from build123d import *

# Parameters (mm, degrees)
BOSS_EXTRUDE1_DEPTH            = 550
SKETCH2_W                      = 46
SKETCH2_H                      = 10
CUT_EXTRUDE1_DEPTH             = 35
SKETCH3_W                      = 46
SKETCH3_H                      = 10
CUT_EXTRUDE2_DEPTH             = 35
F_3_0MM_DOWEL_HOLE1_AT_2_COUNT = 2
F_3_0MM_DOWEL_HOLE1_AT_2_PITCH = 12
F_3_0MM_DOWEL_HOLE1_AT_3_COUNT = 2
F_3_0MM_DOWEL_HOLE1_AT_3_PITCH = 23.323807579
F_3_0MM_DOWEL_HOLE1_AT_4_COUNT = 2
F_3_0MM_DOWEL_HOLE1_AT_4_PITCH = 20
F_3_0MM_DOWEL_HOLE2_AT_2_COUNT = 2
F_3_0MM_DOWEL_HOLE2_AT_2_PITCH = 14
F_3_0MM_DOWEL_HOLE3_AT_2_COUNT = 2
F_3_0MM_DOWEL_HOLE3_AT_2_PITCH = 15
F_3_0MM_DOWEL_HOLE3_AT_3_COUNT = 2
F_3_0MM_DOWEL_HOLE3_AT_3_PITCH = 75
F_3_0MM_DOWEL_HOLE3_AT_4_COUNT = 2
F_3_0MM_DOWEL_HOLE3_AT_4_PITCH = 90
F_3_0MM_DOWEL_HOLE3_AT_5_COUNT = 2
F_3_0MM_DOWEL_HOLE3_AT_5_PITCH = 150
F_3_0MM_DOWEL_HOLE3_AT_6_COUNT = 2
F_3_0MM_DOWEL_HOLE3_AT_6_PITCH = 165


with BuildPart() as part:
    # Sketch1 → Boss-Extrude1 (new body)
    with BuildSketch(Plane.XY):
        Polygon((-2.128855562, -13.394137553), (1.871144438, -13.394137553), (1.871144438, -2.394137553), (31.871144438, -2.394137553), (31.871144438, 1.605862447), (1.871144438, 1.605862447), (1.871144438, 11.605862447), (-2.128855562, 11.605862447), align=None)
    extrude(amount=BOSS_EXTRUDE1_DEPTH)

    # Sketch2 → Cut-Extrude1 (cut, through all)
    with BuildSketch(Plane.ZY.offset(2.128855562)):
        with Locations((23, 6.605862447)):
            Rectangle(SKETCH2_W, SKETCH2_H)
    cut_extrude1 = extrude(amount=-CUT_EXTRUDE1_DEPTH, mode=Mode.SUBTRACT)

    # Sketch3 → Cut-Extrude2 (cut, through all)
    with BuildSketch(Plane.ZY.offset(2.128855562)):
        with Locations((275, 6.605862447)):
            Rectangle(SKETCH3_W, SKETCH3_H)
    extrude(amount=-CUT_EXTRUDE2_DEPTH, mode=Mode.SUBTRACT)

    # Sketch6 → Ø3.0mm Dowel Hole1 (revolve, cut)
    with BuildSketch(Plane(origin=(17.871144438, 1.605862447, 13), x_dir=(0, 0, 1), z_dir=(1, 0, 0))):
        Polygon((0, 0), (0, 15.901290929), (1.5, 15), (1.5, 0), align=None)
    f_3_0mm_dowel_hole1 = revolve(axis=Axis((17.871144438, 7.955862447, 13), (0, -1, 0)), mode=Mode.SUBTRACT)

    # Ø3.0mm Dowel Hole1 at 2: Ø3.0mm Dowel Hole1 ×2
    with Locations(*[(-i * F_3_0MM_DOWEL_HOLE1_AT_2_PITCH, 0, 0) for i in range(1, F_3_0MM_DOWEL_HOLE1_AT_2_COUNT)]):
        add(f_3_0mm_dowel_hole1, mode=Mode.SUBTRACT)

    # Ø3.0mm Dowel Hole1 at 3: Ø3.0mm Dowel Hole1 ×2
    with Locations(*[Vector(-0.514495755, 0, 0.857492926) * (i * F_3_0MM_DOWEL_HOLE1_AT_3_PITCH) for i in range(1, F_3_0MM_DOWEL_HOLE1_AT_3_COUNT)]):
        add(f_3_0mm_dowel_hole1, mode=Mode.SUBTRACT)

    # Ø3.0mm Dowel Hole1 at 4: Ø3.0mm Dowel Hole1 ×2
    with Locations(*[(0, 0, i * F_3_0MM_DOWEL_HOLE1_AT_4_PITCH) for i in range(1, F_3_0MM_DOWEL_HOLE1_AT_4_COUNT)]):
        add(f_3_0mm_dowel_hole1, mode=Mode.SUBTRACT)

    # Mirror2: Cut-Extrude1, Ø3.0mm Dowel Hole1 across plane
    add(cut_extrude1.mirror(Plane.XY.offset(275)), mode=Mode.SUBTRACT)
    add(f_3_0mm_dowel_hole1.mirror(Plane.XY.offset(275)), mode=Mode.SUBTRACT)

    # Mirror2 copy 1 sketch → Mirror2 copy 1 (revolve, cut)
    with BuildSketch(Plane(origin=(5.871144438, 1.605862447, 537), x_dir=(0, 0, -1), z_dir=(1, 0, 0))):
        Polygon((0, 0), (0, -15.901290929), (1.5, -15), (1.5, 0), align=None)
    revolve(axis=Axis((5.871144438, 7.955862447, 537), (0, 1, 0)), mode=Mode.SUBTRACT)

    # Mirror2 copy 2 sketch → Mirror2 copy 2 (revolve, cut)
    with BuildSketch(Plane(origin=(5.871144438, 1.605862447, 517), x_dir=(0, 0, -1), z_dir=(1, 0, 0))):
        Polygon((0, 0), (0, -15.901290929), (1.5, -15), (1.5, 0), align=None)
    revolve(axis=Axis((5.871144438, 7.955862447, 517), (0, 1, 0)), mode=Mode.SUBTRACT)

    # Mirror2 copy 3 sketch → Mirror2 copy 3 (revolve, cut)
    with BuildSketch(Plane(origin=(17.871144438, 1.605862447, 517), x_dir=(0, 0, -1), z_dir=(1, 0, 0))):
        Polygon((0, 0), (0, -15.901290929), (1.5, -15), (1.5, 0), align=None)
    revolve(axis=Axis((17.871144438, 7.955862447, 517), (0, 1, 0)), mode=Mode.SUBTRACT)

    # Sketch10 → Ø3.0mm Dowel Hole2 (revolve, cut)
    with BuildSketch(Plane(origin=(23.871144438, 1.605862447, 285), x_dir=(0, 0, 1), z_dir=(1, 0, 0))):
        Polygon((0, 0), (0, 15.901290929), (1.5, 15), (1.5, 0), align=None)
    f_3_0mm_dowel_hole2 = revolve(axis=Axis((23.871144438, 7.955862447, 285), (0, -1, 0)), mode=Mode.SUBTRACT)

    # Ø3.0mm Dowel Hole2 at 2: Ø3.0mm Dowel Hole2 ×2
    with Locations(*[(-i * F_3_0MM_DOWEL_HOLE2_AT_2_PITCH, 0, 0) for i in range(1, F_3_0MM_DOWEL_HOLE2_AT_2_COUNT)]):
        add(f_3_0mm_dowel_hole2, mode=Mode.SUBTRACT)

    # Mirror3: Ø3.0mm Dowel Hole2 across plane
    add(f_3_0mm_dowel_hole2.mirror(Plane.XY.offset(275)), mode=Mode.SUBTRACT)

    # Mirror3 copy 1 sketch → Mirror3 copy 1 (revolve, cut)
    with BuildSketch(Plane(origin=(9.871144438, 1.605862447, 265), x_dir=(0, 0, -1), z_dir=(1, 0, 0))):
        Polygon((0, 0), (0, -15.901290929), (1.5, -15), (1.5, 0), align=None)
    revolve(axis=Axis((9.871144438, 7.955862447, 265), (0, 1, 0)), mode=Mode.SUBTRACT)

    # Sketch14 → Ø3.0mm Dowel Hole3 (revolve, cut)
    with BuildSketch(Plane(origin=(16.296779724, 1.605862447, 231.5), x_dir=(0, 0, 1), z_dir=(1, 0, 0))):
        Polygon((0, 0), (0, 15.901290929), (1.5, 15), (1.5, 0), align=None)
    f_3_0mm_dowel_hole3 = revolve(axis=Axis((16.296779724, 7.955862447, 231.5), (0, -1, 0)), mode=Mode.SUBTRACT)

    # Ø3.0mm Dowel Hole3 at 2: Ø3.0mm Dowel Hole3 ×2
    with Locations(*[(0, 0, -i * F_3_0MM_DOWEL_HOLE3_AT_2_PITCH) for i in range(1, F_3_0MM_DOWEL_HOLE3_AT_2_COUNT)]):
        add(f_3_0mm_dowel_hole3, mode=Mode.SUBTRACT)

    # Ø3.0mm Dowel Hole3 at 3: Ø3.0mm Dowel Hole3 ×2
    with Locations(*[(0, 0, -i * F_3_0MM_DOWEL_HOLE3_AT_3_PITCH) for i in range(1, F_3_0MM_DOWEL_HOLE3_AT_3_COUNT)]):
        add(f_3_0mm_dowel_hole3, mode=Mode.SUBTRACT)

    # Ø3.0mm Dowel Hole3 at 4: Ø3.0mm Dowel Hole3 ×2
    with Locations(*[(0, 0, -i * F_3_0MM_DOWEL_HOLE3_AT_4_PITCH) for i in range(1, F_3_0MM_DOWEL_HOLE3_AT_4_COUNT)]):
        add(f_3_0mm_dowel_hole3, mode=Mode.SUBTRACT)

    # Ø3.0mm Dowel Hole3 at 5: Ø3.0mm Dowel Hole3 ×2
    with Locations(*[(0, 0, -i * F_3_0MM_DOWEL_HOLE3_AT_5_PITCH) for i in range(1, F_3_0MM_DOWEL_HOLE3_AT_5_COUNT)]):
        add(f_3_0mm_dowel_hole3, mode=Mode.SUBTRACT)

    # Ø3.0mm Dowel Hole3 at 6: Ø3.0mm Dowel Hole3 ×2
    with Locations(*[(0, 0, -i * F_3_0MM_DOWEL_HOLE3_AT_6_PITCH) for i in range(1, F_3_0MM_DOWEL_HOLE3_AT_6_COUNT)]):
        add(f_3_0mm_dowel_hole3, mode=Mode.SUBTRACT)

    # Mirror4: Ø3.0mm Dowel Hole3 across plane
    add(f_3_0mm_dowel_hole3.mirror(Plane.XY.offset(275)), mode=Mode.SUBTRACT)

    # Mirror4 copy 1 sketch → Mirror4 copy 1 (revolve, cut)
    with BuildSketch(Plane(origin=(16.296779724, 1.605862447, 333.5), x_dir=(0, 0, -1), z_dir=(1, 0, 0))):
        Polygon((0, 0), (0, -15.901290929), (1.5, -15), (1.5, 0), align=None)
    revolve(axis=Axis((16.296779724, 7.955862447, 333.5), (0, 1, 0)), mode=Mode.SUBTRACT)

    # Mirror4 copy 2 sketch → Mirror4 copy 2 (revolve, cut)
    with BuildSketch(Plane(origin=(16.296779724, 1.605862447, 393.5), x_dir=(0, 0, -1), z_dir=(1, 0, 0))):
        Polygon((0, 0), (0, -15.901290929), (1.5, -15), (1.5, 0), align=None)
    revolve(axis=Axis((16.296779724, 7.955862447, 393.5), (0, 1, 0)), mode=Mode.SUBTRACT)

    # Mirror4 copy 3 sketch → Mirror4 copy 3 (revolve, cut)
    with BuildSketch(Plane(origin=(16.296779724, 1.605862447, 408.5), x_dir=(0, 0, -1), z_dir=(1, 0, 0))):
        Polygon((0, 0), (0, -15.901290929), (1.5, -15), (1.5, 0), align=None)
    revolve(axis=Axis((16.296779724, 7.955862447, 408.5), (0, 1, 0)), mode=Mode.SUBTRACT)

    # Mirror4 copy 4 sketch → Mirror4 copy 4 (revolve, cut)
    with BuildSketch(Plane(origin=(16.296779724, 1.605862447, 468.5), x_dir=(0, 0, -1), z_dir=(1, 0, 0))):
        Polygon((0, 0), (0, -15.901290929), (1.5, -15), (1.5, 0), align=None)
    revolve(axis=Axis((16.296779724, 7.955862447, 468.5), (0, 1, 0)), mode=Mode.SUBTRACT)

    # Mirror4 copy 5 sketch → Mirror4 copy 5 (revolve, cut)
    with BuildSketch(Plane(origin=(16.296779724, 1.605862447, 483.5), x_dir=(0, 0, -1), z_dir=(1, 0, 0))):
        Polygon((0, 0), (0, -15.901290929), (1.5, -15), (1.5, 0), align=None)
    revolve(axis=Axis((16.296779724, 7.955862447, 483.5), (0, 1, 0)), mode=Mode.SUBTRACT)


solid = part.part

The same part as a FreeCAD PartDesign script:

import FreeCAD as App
import Part
import Sketcher
Q = App.Units.Quantity


def add_polygon(sketch, points):
    """Adds a closed chain of lines whose ends are joined by coincident constraints."""
    first, n = sketch.GeometryCount, len(points)
    for a, b in zip(points, points[1:] + points[:1]):
        sketch.addGeometry(Part.LineSegment(App.Vector(*a, 0), App.Vector(*b, 0)), False)
    for i in range(n):
        sketch.addConstraint(Sketcher.Constraint("Coincident", first + i, 2, first + (i + 1) % n, 1))

doc = App.newDocument("Part")
params = doc.addObject("Spreadsheet::Sheet", "Params")
for row, (alias, value) in enumerate([
    ("sketch1_width", "4 mm"),
    ("sketch1_width2", "30 mm"),
    ("sketch1_height", "11 mm"),
    ("sketch1_height2", "10 mm"),
    ("pad1_length", "550 mm"),
    ("sketch2_width", "10 mm"),
    ("sketch2_height", "46 mm"),
    ("sketch3_width", "10 mm"),
    ("sketch3_height", "46 mm"),
    ("sketch4_width", "15 mm"),
    ("sketch4_height", "1.5 mm"),
    ("groove_angle", "360 deg"),
    ("linearpattern_pitch", "12 mm"),
    ("linearpattern2_pitch", "23.323808 mm"),
    ("linearpattern3_pitch", "20 mm"),
    ("sketch5_width", "15 mm"),
    ("sketch5_height", "1.5 mm"),
    ("groove2_angle", "360 deg"),
    ("sketch6_width", "15 mm"),
    ("sketch6_height", "1.5 mm"),
    ("groove3_angle", "360 deg"),
    ("sketch7_width", "15 mm"),
    ("sketch7_height", "1.5 mm"),
    ("groove4_angle", "360 deg"),
    ("sketch8_width", "15 mm"),
    ("sketch8_height", "1.5 mm"),
    ("groove5_angle", "360 deg"),
    ("linearpattern4_pitch", "14 mm"),
    ("sketch9_width", "15 mm"),
    ("sketch9_height", "1.5 mm"),
    ("groove6_angle", "360 deg"),
    ("sketch10_width", "15 mm"),
    ("sketch10_height", "1.5 mm"),
    ("groove7_angle", "360 deg"),
    ("linearpattern5_pitch", "15 mm"),
    ("linearpattern6_pitch", "75 mm"),
    ("linearpattern7_pitch", "90 mm"),
    ("linearpattern8_pitch", "150 mm"),
    ("linearpattern9_pitch", "165 mm"),
    ("sketch11_width", "15 mm"),
    ("sketch11_height", "1.5 mm"),
    ("groove8_angle", "360 deg"),
    ("sketch12_width", "15 mm"),
    ("sketch12_height", "1.5 mm"),
    ("groove9_angle", "360 deg"),
    ("sketch13_width", "15 mm"),
    ("sketch13_height", "1.5 mm"),
    ("groove10_angle", "360 deg"),
    ("sketch14_width", "15 mm"),
    ("sketch14_height", "1.5 mm"),
    ("groove11_angle", "360 deg"),
    ("sketch15_width", "15 mm"),
    ("sketch15_height", "1.5 mm"),
    ("groove12_angle", "360 deg"),
], start=1):
    params.set(f"A{row}", alias)
    params.set(f"B{row}", "=" + value)
    params.setAlias(f"B{row}", alias)

body = doc.addObject("PartDesign::Body", "Body")

sketch1 = body.newObject("Sketcher::SketchObject", "Sketch")
sketch1.AttachmentSupport = (doc.getObject("XY_Plane"), [""])
sketch1.MapMode = "FlatFace"
add_polygon(sketch1, [(-2.1, -13.4), (1.9, -13.4), (1.9, -2.4), (31.9, -2.4), (31.9, 1.6), (1.9, 1.6), (1.9, 11.6), (-2.1, 11.6)])
sketch1.addConstraint(Sketcher.Constraint("Horizontal", 0))
sketch1.addConstraint(Sketcher.Constraint("Vertical", 1))
sketch1.addConstraint(Sketcher.Constraint("Horizontal", 2))
sketch1.addConstraint(Sketcher.Constraint("Vertical", 3))
sketch1.addConstraint(Sketcher.Constraint("Horizontal", 4))
sketch1.addConstraint(Sketcher.Constraint("Vertical", 5))
sketch1.addConstraint(Sketcher.Constraint("Horizontal", 6))
sketch1.addConstraint(Sketcher.Constraint("Vertical", 7))
sketch1.addConstraint(Sketcher.Constraint("Vertical", 1, 2, 4, 2))
sketch1.addConstraint(Sketcher.Constraint("Equal", 6, 3))
sketch1.addConstraint(Sketcher.Constraint("DistanceX", 0, 1, 0, 2, 4.0))
sketch1.addConstraint(Sketcher.Constraint("DistanceX", 2, 1, 2, 2, 30.0))
sketch1.addConstraint(Sketcher.Constraint("DistanceY", 1, 1, 1, 2, 11.0))
sketch1.addConstraint(Sketcher.Constraint("DistanceY", 5, 1, 5, 2, 10.0))
sketch1.addConstraint(Sketcher.Constraint("DistanceX", -1, 1, 0, 2, 1.871144))
sketch1.addConstraint(Sketcher.Constraint("DistanceY", 0, 2, -1, 1, 13.394138))
sketch1.setExpression("Constraints[18]", "Params.sketch1_width")
sketch1.setExpression("Constraints[19]", "Params.sketch1_width2")
sketch1.setExpression("Constraints[20]", "Params.sketch1_height")
sketch1.setExpression("Constraints[21]", "Params.sketch1_height2")
pad1 = body.newObject("PartDesign::Pad", "Pad")
pad1.Profile = sketch1
pad1.setExpression("Length", "Params.pad1_length")

sketch2 = body.newObject("Sketcher::SketchObject", "Sketch001")
sketch2.AttachmentSupport = (doc.getObject("YZ_Plane"), [""])
sketch2.MapMode = "FlatFace"
sketch2.AttachmentOffset = App.Placement(App.Vector(0, 0, -2.128856), App.Rotation())
add_polygon(sketch2, [(12, 0), (2, 0), (2, 46), (12, 46)])
sketch2.addConstraint(Sketcher.Constraint("Horizontal", 0))
sketch2.addConstraint(Sketcher.Constraint("Vertical", 1))
sketch2.addConstraint(Sketcher.Constraint("Horizontal", 2))
sketch2.addConstraint(Sketcher.Constraint("Vertical", 3))
sketch2.addConstraint(Sketcher.Constraint("PointOnObject", 0, 2, -1))
sketch2.addConstraint(Sketcher.Constraint("DistanceX", 0, 2, 0, 1, 10.0))
sketch2.addConstraint(Sketcher.Constraint("DistanceY", 1, 1, 1, 2, 46.0))
sketch2.addConstraint(Sketcher.Constraint("DistanceX", -1, 1, 0, 2, 1.605862))
sketch2.setExpression("Constraints[9]", "Params.sketch2_width")
sketch2.setExpression("Constraints[10]", "Params.sketch2_height")
pocket1 = body.newObject("PartDesign::Pocket", "Pocket")
pocket1.Profile = sketch2
pocket1.Type = "ThroughAll"
pocket1.Reversed = True

sketch3 = body.newObject("Sketcher::SketchObject", "Sketch002")
sketch3.AttachmentSupport = (doc.getObject("YZ_Plane"), [""])
sketch3.MapMode = "FlatFace"
sketch3.AttachmentOffset = App.Placement(App.Vector(0, 0, -2.128856), App.Rotation())
add_polygon(sketch3, [(12, 252), (2, 252), (2, 298), (12, 298)])
sketch3.addConstraint(Sketcher.Constraint("Horizontal", 0))
sketch3.addConstraint(Sketcher.Constraint("Vertical", 1))
sketch3.addConstraint(Sketcher.Constraint("Horizontal", 2))
sketch3.addConstraint(Sketcher.Constraint("Vertical", 3))
sketch3.addConstraint(Sketcher.Constraint("DistanceX", 0, 2, 0, 1, 10.0))
sketch3.addConstraint(Sketcher.Constraint("DistanceY", 1, 1, 1, 2, 46.0))
sketch3.addConstraint(Sketcher.Constraint("DistanceY", -1, 1, 0, 2, 252.0))
sketch3.addConstraint(Sketcher.Constraint("DistanceX", -1, 1, 0, 2, 1.605862))
sketch3.setExpression("Constraints[8]", "Params.sketch3_width")
sketch3.setExpression("Constraints[9]", "Params.sketch3_height")
pocket2 = body.newObject("PartDesign::Pocket", "Pocket001")
pocket2.Profile = sketch3
pocket2.Type = "ThroughAll"
pocket2.Reversed = True

sketch4 = body.newObject("Sketcher::SketchObject", "Sketch003")
sketch4.AttachmentSupport = (doc.getObject("YZ_Plane"), [""])
sketch4.MapMode = "FlatFace"
sketch4.AttachmentOffset = App.Placement(App.Vector(0, 0, 17.871144), App.Rotation())
add_polygon(sketch4, [(-14.3, 13), (1.6, 13), (1.6, 14.5), (-13.4, 14.5)])
sketch4.addGeometry(Part.LineSegment(App.Vector(1.6, 13, 0), App.Vector(-14.3, 13, 0)), True)
sketch4.addConstraint(Sketcher.Constraint("Horizontal", 0))
sketch4.addConstraint(Sketcher.Constraint("Vertical", 1))
sketch4.addConstraint(Sketcher.Constraint("Horizontal", 2))
sketch4.addConstraint(Sketcher.Constraint("Horizontal", 4))
sketch4.addConstraint(Sketcher.Constraint("Coincident", 4, 1, 0, 2))
sketch4.addConstraint(Sketcher.Constraint("Equal", 0, 4))
sketch4.addConstraint(Sketcher.Constraint("DistanceX", 2, 2, 2, 1, 15.0))
sketch4.addConstraint(Sketcher.Constraint("Angle", 3, Q("-121 deg")))
sketch4.addConstraint(Sketcher.Constraint("DistanceY", 1, 1, 1, 2, 1.5))
sketch4.addConstraint(Sketcher.Constraint("DistanceY", -1, 1, 0, 2, 13.0))
sketch4.addConstraint(Sketcher.Constraint("DistanceX", 3, 2, -1, 1, 14.295428))
sketch4.setExpression("Constraints[10]", "Params.sketch4_width")
sketch4.setExpression("Constraints[12]", "Params.sketch4_height")
groove = body.newObject("PartDesign::Groove", "Groove")
groove.Profile = sketch4
groove.ReferenceAxis = (sketch4, ["Axis0"])
groove.setExpression("Angle", "Params.groove_angle")
doc.recompute()

linearpattern = body.newObject("PartDesign::LinearPattern", "LinearPattern")
linearpattern.Originals = [groove]
linearpattern.Direction = (doc.getObject("X_Axis"), [""])
linearpattern.Mode = "offset"
linearpattern.setExpression("Offset", "Params.linearpattern_pitch")
linearpattern.Occurrences = 2
linearpattern.Reversed = True
body.Tip = linearpattern
doc.recompute()

datumline = body.newObject("PartDesign::Line", "DatumLine")
datumline.Placement = App.Placement(App.Vector(0, 0, 0), App.Rotation(App.Vector(0, 0, 1), App.Vector(-0.514495755, 0, 0.857492926)))
linearpattern2 = body.newObject("PartDesign::LinearPattern", "LinearPattern001")
linearpattern2.Originals = [groove]
linearpattern2.Direction = (datumline, [""])
linearpattern2.Mode = "offset"
linearpattern2.setExpression("Offset", "Params.linearpattern2_pitch")
linearpattern2.Occurrences = 2
body.Tip = linearpattern2
doc.recompute()

linearpattern3 = body.newObject("PartDesign::LinearPattern", "LinearPattern002")
linearpattern3.Originals = [groove]
linearpattern3.Direction = (doc.getObject("Z_Axis"), [""])
linearpattern3.Mode = "offset"
linearpattern3.setExpression("Offset", "Params.linearpattern3_pitch")
linearpattern3.Occurrences = 2
body.Tip = linearpattern3
doc.recompute()

datumplane = body.newObject("PartDesign::Plane", "DatumPlane")
datumplane.AttachmentSupport = (doc.getObject("XY_Plane"), [""])
datumplane.MapMode = "FlatFace"
datumplane.AttachmentOffset = App.Placement(App.Vector(0, 0, 275), App.Rotation())
mirrored = body.newObject("PartDesign::Mirrored", "Mirrored")
mirrored.Originals = [pocket1, groove]
mirrored.MirrorPlane = (datumplane, [""])
body.Tip = mirrored

sketch5 = body.newObject("Sketcher::SketchObject", "Sketch004")
sketch5.AttachmentSupport = (doc.getObject("YZ_Plane"), [""])
sketch5.MapMode = "FlatFace"
sketch5.AttachmentOffset = App.Placement(App.Vector(0, 0, 5.871144), App.Rotation())
add_polygon(sketch5, [(1.6, 537), (-14.3, 537), (-13.4, 535.5), (1.6, 535.5)])
sketch5.addGeometry(Part.LineSegment(App.Vector(-14.3, 537, 0), App.Vector(1.6, 537, 0)), True)
sketch5.addConstraint(Sketcher.Constraint("Horizontal", 0))
sketch5.addConstraint(Sketcher.Constraint("Horizontal", 2))
sketch5.addConstraint(Sketcher.Constraint("Vertical", 3))
sketch5.addConstraint(Sketcher.Constraint("Horizontal", 4))
sketch5.addConstraint(Sketcher.Constraint("Coincident", 4, 1, 0, 2))
sketch5.addConstraint(Sketcher.Constraint("Vertical", 2, 2, 4, 2))
sketch5.addConstraint(Sketcher.Constraint("DistanceX", 2, 1, 2, 2, 15.0))
sketch5.addConstraint(Sketcher.Constraint("Angle", 1, Q("-59 deg")))
sketch5.addConstraint(Sketcher.Constraint("DistanceY", 3, 1, 3, 2, 1.5))
sketch5.addConstraint(Sketcher.Constraint("DistanceY", -1, 1, 0, 2, 537.0))
sketch5.addConstraint(Sketcher.Constraint("DistanceX", 0, 2, -1, 1, 14.295428))
sketch5.setExpression("Constraints[10]", "Params.sketch5_width")
sketch5.setExpression("Constraints[12]", "Params.sketch5_height")
groove2 = body.newObject("PartDesign::Groove", "Groove001")
groove2.Profile = sketch5
groove2.ReferenceAxis = (sketch5, ["Axis0"])
groove2.setExpression("Angle", "Params.groove2_angle")

sketch6 = body.newObject("Sketcher::SketchObject", "Sketch005")
sketch6.AttachmentSupport = (doc.getObject("YZ_Plane"), [""])
sketch6.MapMode = "FlatFace"
sketch6.AttachmentOffset = App.Placement(App.Vector(0, 0, 5.871144), App.Rotation())
add_polygon(sketch6, [(1.6, 517), (-14.3, 517), (-13.4, 515.5), (1.6, 515.5)])
sketch6.addGeometry(Part.LineSegment(App.Vector(-14.3, 517, 0), App.Vector(1.6, 517, 0)), True)
sketch6.addConstraint(Sketcher.Constraint("Horizontal", 0))
sketch6.addConstraint(Sketcher.Constraint("Horizontal", 2))
sketch6.addConstraint(Sketcher.Constraint("Vertical", 3))
sketch6.addConstraint(Sketcher.Constraint("Horizontal", 4))
sketch6.addConstraint(Sketcher.Constraint("Coincident", 4, 1, 0, 2))
sketch6.addConstraint(Sketcher.Constraint("Vertical", 2, 2, 4, 2))
sketch6.addConstraint(Sketcher.Constraint("DistanceX", 2, 1, 2, 2, 15.0))
sketch6.addConstraint(Sketcher.Constraint("Angle", 1, Q("-59 deg")))
sketch6.addConstraint(Sketcher.Constraint("DistanceY", 3, 1, 3, 2, 1.5))
sketch6.addConstraint(Sketcher.Constraint("DistanceY", -1, 1, 0, 2, 517.0))
sketch6.addConstraint(Sketcher.Constraint("DistanceX", 0, 2, -1, 1, 14.295428))
sketch6.setExpression("Constraints[10]", "Params.sketch6_width")
sketch6.setExpression("Constraints[12]", "Params.sketch6_height")
groove3 = body.newObject("PartDesign::Groove", "Groove002")
groove3.Profile = sketch6
groove3.ReferenceAxis = (sketch6, ["Axis0"])
groove3.setExpression("Angle", "Params.groove3_angle")

sketch7 = body.newObject("Sketcher::SketchObject", "Sketch006")
sketch7.AttachmentSupport = (doc.getObject("YZ_Plane"), [""])
sketch7.MapMode = "FlatFace"
sketch7.AttachmentOffset = App.Placement(App.Vector(0, 0, 17.871144), App.Rotation())
add_polygon(sketch7, [(1.6, 517), (-14.3, 517), (-13.4, 515.5), (1.6, 515.5)])
sketch7.addGeometry(Part.LineSegment(App.Vector(-14.3, 517, 0), App.Vector(1.6, 517, 0)), True)
sketch7.addConstraint(Sketcher.Constraint("Horizontal", 0))
sketch7.addConstraint(Sketcher.Constraint("Horizontal", 2))
sketch7.addConstraint(Sketcher.Constraint("Vertical", 3))
sketch7.addConstraint(Sketcher.Constraint("Horizontal", 4))
sketch7.addConstraint(Sketcher.Constraint("Coincident", 4, 1, 0, 2))
sketch7.addConstraint(Sketcher.Constraint("Vertical", 2, 2, 4, 2))
sketch7.addConstraint(Sketcher.Constraint("DistanceX", 2, 1, 2, 2, 15.0))
sketch7.addConstraint(Sketcher.Constraint("Angle", 1, Q("-59 deg")))
sketch7.addConstraint(Sketcher.Constraint("DistanceY", 3, 1, 3, 2, 1.5))
sketch7.addConstraint(Sketcher.Constraint("DistanceY", -1, 1, 0, 2, 517.0))
sketch7.addConstraint(Sketcher.Constraint("DistanceX", 0, 2, -1, 1, 14.295428))
sketch7.setExpression("Constraints[10]", "Params.sketch7_width")
sketch7.setExpression("Constraints[12]", "Params.sketch7_height")
groove4 = body.newObject("PartDesign::Groove", "Groove003")
groove4.Profile = sketch7
groove4.ReferenceAxis = (sketch7, ["Axis0"])
groove4.setExpression("Angle", "Params.groove4_angle")

sketch8 = body.newObject("Sketcher::SketchObject", "Sketch007")
sketch8.AttachmentSupport = (doc.getObject("YZ_Plane"), [""])
sketch8.MapMode = "FlatFace"
sketch8.AttachmentOffset = App.Placement(App.Vector(0, 0, 23.871144), App.Rotation())
add_polygon(sketch8, [(-14.3, 285), (1.6, 285), (1.6, 286.5), (-13.4, 286.5)])
sketch8.addGeometry(Part.LineSegment(App.Vector(1.6, 285, 0), App.Vector(-14.3, 285, 0)), True)
sketch8.addConstraint(Sketcher.Constraint("Horizontal", 0))
sketch8.addConstraint(Sketcher.Constraint("Vertical", 1))
sketch8.addConstraint(Sketcher.Constraint("Horizontal", 2))
sketch8.addConstraint(Sketcher.Constraint("Horizontal", 4))
sketch8.addConstraint(Sketcher.Constraint("Coincident", 4, 1, 0, 2))
sketch8.addConstraint(Sketcher.Constraint("Equal", 0, 4))
sketch8.addConstraint(Sketcher.Constraint("DistanceX", 2, 2, 2, 1, 15.0))
sketch8.addConstraint(Sketcher.Constraint("Angle", 3, Q("-121 deg")))
sketch8.addConstraint(Sketcher.Constraint("DistanceY", 1, 1, 1, 2, 1.5))
sketch8.addConstraint(Sketcher.Constraint("DistanceY", -1, 1, 0, 2, 285.0))
sketch8.addConstraint(Sketcher.Constraint("DistanceX", 3, 2, -1, 1, 14.295428))
sketch8.setExpression("Constraints[10]", "Params.sketch8_width")
sketch8.setExpression("Constraints[12]", "Params.sketch8_height")
groove5 = body.newObject("PartDesign::Groove", "Groove004")
groove5.Profile = sketch8
groove5.ReferenceAxis = (sketch8, ["Axis0"])
groove5.setExpression("Angle", "Params.groove5_angle")
doc.recompute()

linearpattern4 = body.newObject("PartDesign::LinearPattern", "LinearPattern003")
linearpattern4.Originals = [groove5]
linearpattern4.Direction = (doc.getObject("X_Axis"), [""])
linearpattern4.Mode = "offset"
linearpattern4.setExpression("Offset", "Params.linearpattern4_pitch")
linearpattern4.Occurrences = 2
linearpattern4.Reversed = True
body.Tip = linearpattern4
doc.recompute()

datumplane2 = body.newObject("PartDesign::Plane", "DatumPlane001")
datumplane2.AttachmentSupport = (doc.getObject("XY_Plane"), [""])
datumplane2.MapMode = "FlatFace"
datumplane2.AttachmentOffset = App.Placement(App.Vector(0, 0, 275), App.Rotation())
mirrored2 = body.newObject("PartDesign::Mirrored", "Mirrored001")
mirrored2.Originals = [groove5]
mirrored2.MirrorPlane = (datumplane2, [""])
body.Tip = mirrored2

sketch9 = body.newObject("Sketcher::SketchObject", "Sketch008")
sketch9.AttachmentSupport = (doc.getObject("YZ_Plane"), [""])
sketch9.MapMode = "FlatFace"
sketch9.AttachmentOffset = App.Placement(App.Vector(0, 0, 9.871144), App.Rotation())
add_polygon(sketch9, [(1.6, 265), (-14.3, 265), (-13.4, 263.5), (1.6, 263.5)])
sketch9.addGeometry(Part.LineSegment(App.Vector(-14.3, 265, 0), App.Vector(1.6, 265, 0)), True)
sketch9.addConstraint(Sketcher.Constraint("Horizontal", 0))
sketch9.addConstraint(Sketcher.Constraint("Horizontal", 2))
sketch9.addConstraint(Sketcher.Constraint("Vertical", 3))
sketch9.addConstraint(Sketcher.Constraint("Horizontal", 4))
sketch9.addConstraint(Sketcher.Constraint("Coincident", 4, 1, 0, 2))
sketch9.addConstraint(Sketcher.Constraint("Vertical", 2, 2, 4, 2))
sketch9.addConstraint(Sketcher.Constraint("DistanceX", 2, 1, 2, 2, 15.0))
sketch9.addConstraint(Sketcher.Constraint("Angle", 1, Q("-59 deg")))
sketch9.addConstraint(Sketcher.Constraint("DistanceY", 3, 1, 3, 2, 1.5))
sketch9.addConstraint(Sketcher.Constraint("DistanceY", -1, 1, 0, 2, 265.0))
sketch9.addConstraint(Sketcher.Constraint("DistanceX", 0, 2, -1, 1, 14.295428))
sketch9.setExpression("Constraints[10]", "Params.sketch9_width")
sketch9.setExpression("Constraints[12]", "Params.sketch9_height")
groove6 = body.newObject("PartDesign::Groove", "Groove005")
groove6.Profile = sketch9
groove6.ReferenceAxis = (sketch9, ["Axis0"])
groove6.setExpression("Angle", "Params.groove6_angle")

sketch10 = body.newObject("Sketcher::SketchObject", "Sketch009")
sketch10.AttachmentSupport = (doc.getObject("YZ_Plane"), [""])
sketch10.MapMode = "FlatFace"
sketch10.AttachmentOffset = App.Placement(App.Vector(0, 0, 16.29678), App.Rotation())
add_polygon(sketch10, [(-14.3, 231.5), (1.6, 231.5), (1.6, 233), (-13.4, 233)])
sketch10.addGeometry(Part.LineSegment(App.Vector(1.6, 231.5, 0), App.Vector(-14.3, 231.5, 0)), True)
sketch10.addConstraint(Sketcher.Constraint("Horizontal", 0))
sketch10.addConstraint(Sketcher.Constraint("Vertical", 1))
sketch10.addConstraint(Sketcher.Constraint("Horizontal", 2))
sketch10.addConstraint(Sketcher.Constraint("Horizontal", 4))
sketch10.addConstraint(Sketcher.Constraint("Coincident", 4, 1, 0, 2))
sketch10.addConstraint(Sketcher.Constraint("Equal", 0, 4))
sketch10.addConstraint(Sketcher.Constraint("DistanceX", 2, 2, 2, 1, 15.0))
sketch10.addConstraint(Sketcher.Constraint("Angle", 3, Q("-121 deg")))
sketch10.addConstraint(Sketcher.Constraint("DistanceY", 1, 1, 1, 2, 1.5))
sketch10.addConstraint(Sketcher.Constraint("DistanceY", -1, 1, 1, 2, 233.0))
sketch10.addConstraint(Sketcher.Constraint("DistanceX", 3, 2, -1, 1, 14.295428))
sketch10.setExpression("Constraints[10]", "Params.sketch10_width")
sketch10.setExpression("Constraints[12]", "Params.sketch10_height")
groove7 = body.newObject("PartDesign::Groove", "Groove006")
groove7.Profile = sketch10
groove7.ReferenceAxis = (sketch10, ["Axis0"])
groove7.setExpression("Angle", "Params.groove7_angle")
doc.recompute()

linearpattern5 = body.newObject("PartDesign::LinearPattern", "LinearPattern004")
linearpattern5.Originals = [groove7]
linearpattern5.Direction = (doc.getObject("Z_Axis"), [""])
linearpattern5.Mode = "offset"
linearpattern5.setExpression("Offset", "Params.linearpattern5_pitch")
linearpattern5.Occurrences = 2
linearpattern5.Reversed = True
body.Tip = linearpattern5
doc.recompute()

linearpattern6 = body.newObject("PartDesign::LinearPattern", "LinearPattern005")
linearpattern6.Originals = [groove7]
linearpattern6.Direction = (doc.getObject("Z_Axis"), [""])
linearpattern6.Mode = "offset"
linearpattern6.setExpression("Offset", "Params.linearpattern6_pitch")
linearpattern6.Occurrences = 2
linearpattern6.Reversed = True
body.Tip = linearpattern6
doc.recompute()

linearpattern7 = body.newObject("PartDesign::LinearPattern", "LinearPattern006")
linearpattern7.Originals = [groove7]
linearpattern7.Direction = (doc.getObject("Z_Axis"), [""])
linearpattern7.Mode = "offset"
linearpattern7.setExpression("Offset", "Params.linearpattern7_pitch")
linearpattern7.Occurrences = 2
linearpattern7.Reversed = True
body.Tip = linearpattern7
doc.recompute()

linearpattern8 = body.newObject("PartDesign::LinearPattern", "LinearPattern007")
linearpattern8.Originals = [groove7]
linearpattern8.Direction = (doc.getObject("Z_Axis"), [""])
linearpattern8.Mode = "offset"
linearpattern8.setExpression("Offset", "Params.linearpattern8_pitch")
linearpattern8.Occurrences = 2
linearpattern8.Reversed = True
body.Tip = linearpattern8
doc.recompute()

linearpattern9 = body.newObject("PartDesign::LinearPattern", "LinearPattern008")
linearpattern9.Originals = [groove7]
linearpattern9.Direction = (doc.getObject("Z_Axis"), [""])
linearpattern9.Mode = "offset"
linearpattern9.setExpression("Offset", "Params.linearpattern9_pitch")
linearpattern9.Occurrences = 2
linearpattern9.Reversed = True
body.Tip = linearpattern9
doc.recompute()

datumplane3 = body.newObject("PartDesign::Plane", "DatumPlane002")
datumplane3.AttachmentSupport = (doc.getObject("XY_Plane"), [""])
datumplane3.MapMode = "FlatFace"
datumplane3.AttachmentOffset = App.Placement(App.Vector(0, 0, 275), App.Rotation())
mirrored3 = body.newObject("PartDesign::Mirrored", "Mirrored002")
mirrored3.Originals = [groove7]
mirrored3.MirrorPlane = (datumplane3, [""])
body.Tip = mirrored3

sketch11 = body.newObject("Sketcher::SketchObject", "Sketch010")
sketch11.AttachmentSupport = (doc.getObject("YZ_Plane"), [""])
sketch11.MapMode = "FlatFace"
sketch11.AttachmentOffset = App.Placement(App.Vector(0, 0, 16.29678), App.Rotation())
add_polygon(sketch11, [(1.6, 333.5), (-14.3, 333.5), (-13.4, 332), (1.6, 332)])
sketch11.addGeometry(Part.LineSegment(App.Vector(-14.3, 333.5, 0), App.Vector(1.6, 333.5, 0)), True)
sketch11.addConstraint(Sketcher.Constraint("Horizontal", 0))
sketch11.addConstraint(Sketcher.Constraint("Horizontal", 2))
sketch11.addConstraint(Sketcher.Constraint("Vertical", 3))
sketch11.addConstraint(Sketcher.Constraint("Horizontal", 4))
sketch11.addConstraint(Sketcher.Constraint("Coincident", 4, 1, 0, 2))
sketch11.addConstraint(Sketcher.Constraint("Vertical", 2, 2, 4, 2))
sketch11.addConstraint(Sketcher.Constraint("DistanceX", 2, 1, 2, 2, 15.0))
sketch11.addConstraint(Sketcher.Constraint("Angle", 1, Q("-59 deg")))
sketch11.addConstraint(Sketcher.Constraint("DistanceY", 3, 1, 3, 2, 1.5))
sketch11.addConstraint(Sketcher.Constraint("DistanceY", -1, 1, 1, 2, 332.0))
sketch11.addConstraint(Sketcher.Constraint("DistanceX", 0, 2, -1, 1, 14.295428))
sketch11.setExpression("Constraints[10]", "Params.sketch11_width")
sketch11.setExpression("Constraints[12]", "Params.sketch11_height")
groove8 = body.newObject("PartDesign::Groove", "Groove007")
groove8.Profile = sketch11
groove8.ReferenceAxis = (sketch11, ["Axis0"])
groove8.setExpression("Angle", "Params.groove8_angle")

sketch12 = body.newObject("Sketcher::SketchObject", "Sketch011")
sketch12.AttachmentSupport = (doc.getObject("YZ_Plane"), [""])
sketch12.MapMode = "FlatFace"
sketch12.AttachmentOffset = App.Placement(App.Vector(0, 0, 16.29678), App.Rotation())
add_polygon(sketch12, [(1.6, 393.5), (-14.3, 393.5), (-13.4, 392), (1.6, 392)])
sketch12.addGeometry(Part.LineSegment(App.Vector(-14.3, 393.5, 0), App.Vector(1.6, 393.5, 0)), True)
sketch12.addConstraint(Sketcher.Constraint("Horizontal", 0))
sketch12.addConstraint(Sketcher.Constraint("Horizontal", 2))
sketch12.addConstraint(Sketcher.Constraint("Vertical", 3))
sketch12.addConstraint(Sketcher.Constraint("Horizontal", 4))
sketch12.addConstraint(Sketcher.Constraint("Coincident", 4, 1, 0, 2))
sketch12.addConstraint(Sketcher.Constraint("Vertical", 2, 2, 4, 2))
sketch12.addConstraint(Sketcher.Constraint("DistanceX", 2, 1, 2, 2, 15.0))
sketch12.addConstraint(Sketcher.Constraint("Angle", 1, Q("-59 deg")))
sketch12.addConstraint(Sketcher.Constraint("DistanceY", 3, 1, 3, 2, 1.5))
sketch12.addConstraint(Sketcher.Constraint("DistanceY", -1, 1, 1, 2, 392.0))
sketch12.addConstraint(Sketcher.Constraint("DistanceX", 0, 2, -1, 1, 14.295428))
sketch12.setExpression("Constraints[10]", "Params.sketch12_width")
sketch12.setExpression("Constraints[12]", "Params.sketch12_height")
groove9 = body.newObject("PartDesign::Groove", "Groove008")
groove9.Profile = sketch12
groove9.ReferenceAxis = (sketch12, ["Axis0"])
groove9.setExpression("Angle", "Params.groove9_angle")

sketch13 = body.newObject("Sketcher::SketchObject", "Sketch012")
sketch13.AttachmentSupport = (doc.getObject("YZ_Plane"), [""])
sketch13.MapMode = "FlatFace"
sketch13.AttachmentOffset = App.Placement(App.Vector(0, 0, 16.29678), App.Rotation())
add_polygon(sketch13, [(1.6, 408.5), (-14.3, 408.5), (-13.4, 407), (1.6, 407)])
sketch13.addGeometry(Part.LineSegment(App.Vector(-14.3, 408.5, 0), App.Vector(1.6, 408.5, 0)), True)
sketch13.addConstraint(Sketcher.Constraint("Horizontal", 0))
sketch13.addConstraint(Sketcher.Constraint("Horizontal", 2))
sketch13.addConstraint(Sketcher.Constraint("Vertical", 3))
sketch13.addConstraint(Sketcher.Constraint("Horizontal", 4))
sketch13.addConstraint(Sketcher.Constraint("Coincident", 4, 1, 0, 2))
sketch13.addConstraint(Sketcher.Constraint("Vertical", 2, 2, 4, 2))
sketch13.addConstraint(Sketcher.Constraint("DistanceX", 2, 1, 2, 2, 15.0))
sketch13.addConstraint(Sketcher.Constraint("Angle", 1, Q("-59 deg")))
sketch13.addConstraint(Sketcher.Constraint("DistanceY", 3, 1, 3, 2, 1.5))
sketch13.addConstraint(Sketcher.Constraint("DistanceY", -1, 1, 1, 2, 407.0))
sketch13.addConstraint(Sketcher.Constraint("DistanceX", 0, 2, -1, 1, 14.295428))
sketch13.setExpression("Constraints[10]", "Params.sketch13_width")
sketch13.setExpression("Constraints[12]", "Params.sketch13_height")
groove10 = body.newObject("PartDesign::Groove", "Groove009")
groove10.Profile = sketch13
groove10.ReferenceAxis = (sketch13, ["Axis0"])
groove10.setExpression("Angle", "Params.groove10_angle")

sketch14 = body.newObject("Sketcher::SketchObject", "Sketch013")
sketch14.AttachmentSupport = (doc.getObject("YZ_Plane"), [""])
sketch14.MapMode = "FlatFace"
sketch14.AttachmentOffset = App.Placement(App.Vector(0, 0, 16.29678), App.Rotation())
add_polygon(sketch14, [(1.6, 468.5), (-14.3, 468.5), (-13.4, 467), (1.6, 467)])
sketch14.addGeometry(Part.LineSegment(App.Vector(-14.3, 468.5, 0), App.Vector(1.6, 468.5, 0)), True)
sketch14.addConstraint(Sketcher.Constraint("Horizontal", 0))
sketch14.addConstraint(Sketcher.Constraint("Horizontal", 2))
sketch14.addConstraint(Sketcher.Constraint("Vertical", 3))
sketch14.addConstraint(Sketcher.Constraint("Horizontal", 4))
sketch14.addConstraint(Sketcher.Constraint("Coincident", 4, 1, 0, 2))
sketch14.addConstraint(Sketcher.Constraint("Vertical", 2, 2, 4, 2))
sketch14.addConstraint(Sketcher.Constraint("DistanceX", 2, 1, 2, 2, 15.0))
sketch14.addConstraint(Sketcher.Constraint("Angle", 1, Q("-59 deg")))
sketch14.addConstraint(Sketcher.Constraint("DistanceY", 3, 1, 3, 2, 1.5))
sketch14.addConstraint(Sketcher.Constraint("DistanceY", -1, 1, 1, 2, 467.0))
sketch14.addConstraint(Sketcher.Constraint("DistanceX", 0, 2, -1, 1, 14.295428))
sketch14.setExpression("Constraints[10]", "Params.sketch14_width")
sketch14.setExpression("Constraints[12]", "Params.sketch14_height")
groove11 = body.newObject("PartDesign::Groove", "Groove010")
groove11.Profile = sketch14
groove11.ReferenceAxis = (sketch14, ["Axis0"])
groove11.setExpression("Angle", "Params.groove11_angle")

sketch15 = body.newObject("Sketcher::SketchObject", "Sketch014")
sketch15.AttachmentSupport = (doc.getObject("YZ_Plane"), [""])
sketch15.MapMode = "FlatFace"
sketch15.AttachmentOffset = App.Placement(App.Vector(0, 0, 16.29678), App.Rotation())
add_polygon(sketch15, [(1.6, 483.5), (-14.3, 483.5), (-13.4, 482), (1.6, 482)])
sketch15.addGeometry(Part.LineSegment(App.Vector(-14.3, 483.5, 0), App.Vector(1.6, 483.5, 0)), True)
sketch15.addConstraint(Sketcher.Constraint("Horizontal", 0))
sketch15.addConstraint(Sketcher.Constraint("Horizontal", 2))
sketch15.addConstraint(Sketcher.Constraint("Vertical", 3))
sketch15.addConstraint(Sketcher.Constraint("Horizontal", 4))
sketch15.addConstraint(Sketcher.Constraint("Coincident", 4, 1, 0, 2))
sketch15.addConstraint(Sketcher.Constraint("Vertical", 2, 2, 4, 2))
sketch15.addConstraint(Sketcher.Constraint("DistanceX", 2, 1, 2, 2, 15.0))
sketch15.addConstraint(Sketcher.Constraint("Angle", 1, Q("-59 deg")))
sketch15.addConstraint(Sketcher.Constraint("DistanceY", 3, 1, 3, 2, 1.5))
sketch15.addConstraint(Sketcher.Constraint("DistanceY", -1, 1, 1, 2, 482.0))
sketch15.addConstraint(Sketcher.Constraint("DistanceX", 0, 2, -1, 1, 14.295428))
sketch15.setExpression("Constraints[10]", "Params.sketch15_width")
sketch15.setExpression("Constraints[12]", "Params.sketch15_height")
groove12 = body.newObject("PartDesign::Groove", "Groove011")
groove12.Profile = sketch15
groove12.ReferenceAxis = (sketch15, ["Axis0"])
groove12.setExpression("Angle", "Params.groove12_angle")

doc.recompute()
